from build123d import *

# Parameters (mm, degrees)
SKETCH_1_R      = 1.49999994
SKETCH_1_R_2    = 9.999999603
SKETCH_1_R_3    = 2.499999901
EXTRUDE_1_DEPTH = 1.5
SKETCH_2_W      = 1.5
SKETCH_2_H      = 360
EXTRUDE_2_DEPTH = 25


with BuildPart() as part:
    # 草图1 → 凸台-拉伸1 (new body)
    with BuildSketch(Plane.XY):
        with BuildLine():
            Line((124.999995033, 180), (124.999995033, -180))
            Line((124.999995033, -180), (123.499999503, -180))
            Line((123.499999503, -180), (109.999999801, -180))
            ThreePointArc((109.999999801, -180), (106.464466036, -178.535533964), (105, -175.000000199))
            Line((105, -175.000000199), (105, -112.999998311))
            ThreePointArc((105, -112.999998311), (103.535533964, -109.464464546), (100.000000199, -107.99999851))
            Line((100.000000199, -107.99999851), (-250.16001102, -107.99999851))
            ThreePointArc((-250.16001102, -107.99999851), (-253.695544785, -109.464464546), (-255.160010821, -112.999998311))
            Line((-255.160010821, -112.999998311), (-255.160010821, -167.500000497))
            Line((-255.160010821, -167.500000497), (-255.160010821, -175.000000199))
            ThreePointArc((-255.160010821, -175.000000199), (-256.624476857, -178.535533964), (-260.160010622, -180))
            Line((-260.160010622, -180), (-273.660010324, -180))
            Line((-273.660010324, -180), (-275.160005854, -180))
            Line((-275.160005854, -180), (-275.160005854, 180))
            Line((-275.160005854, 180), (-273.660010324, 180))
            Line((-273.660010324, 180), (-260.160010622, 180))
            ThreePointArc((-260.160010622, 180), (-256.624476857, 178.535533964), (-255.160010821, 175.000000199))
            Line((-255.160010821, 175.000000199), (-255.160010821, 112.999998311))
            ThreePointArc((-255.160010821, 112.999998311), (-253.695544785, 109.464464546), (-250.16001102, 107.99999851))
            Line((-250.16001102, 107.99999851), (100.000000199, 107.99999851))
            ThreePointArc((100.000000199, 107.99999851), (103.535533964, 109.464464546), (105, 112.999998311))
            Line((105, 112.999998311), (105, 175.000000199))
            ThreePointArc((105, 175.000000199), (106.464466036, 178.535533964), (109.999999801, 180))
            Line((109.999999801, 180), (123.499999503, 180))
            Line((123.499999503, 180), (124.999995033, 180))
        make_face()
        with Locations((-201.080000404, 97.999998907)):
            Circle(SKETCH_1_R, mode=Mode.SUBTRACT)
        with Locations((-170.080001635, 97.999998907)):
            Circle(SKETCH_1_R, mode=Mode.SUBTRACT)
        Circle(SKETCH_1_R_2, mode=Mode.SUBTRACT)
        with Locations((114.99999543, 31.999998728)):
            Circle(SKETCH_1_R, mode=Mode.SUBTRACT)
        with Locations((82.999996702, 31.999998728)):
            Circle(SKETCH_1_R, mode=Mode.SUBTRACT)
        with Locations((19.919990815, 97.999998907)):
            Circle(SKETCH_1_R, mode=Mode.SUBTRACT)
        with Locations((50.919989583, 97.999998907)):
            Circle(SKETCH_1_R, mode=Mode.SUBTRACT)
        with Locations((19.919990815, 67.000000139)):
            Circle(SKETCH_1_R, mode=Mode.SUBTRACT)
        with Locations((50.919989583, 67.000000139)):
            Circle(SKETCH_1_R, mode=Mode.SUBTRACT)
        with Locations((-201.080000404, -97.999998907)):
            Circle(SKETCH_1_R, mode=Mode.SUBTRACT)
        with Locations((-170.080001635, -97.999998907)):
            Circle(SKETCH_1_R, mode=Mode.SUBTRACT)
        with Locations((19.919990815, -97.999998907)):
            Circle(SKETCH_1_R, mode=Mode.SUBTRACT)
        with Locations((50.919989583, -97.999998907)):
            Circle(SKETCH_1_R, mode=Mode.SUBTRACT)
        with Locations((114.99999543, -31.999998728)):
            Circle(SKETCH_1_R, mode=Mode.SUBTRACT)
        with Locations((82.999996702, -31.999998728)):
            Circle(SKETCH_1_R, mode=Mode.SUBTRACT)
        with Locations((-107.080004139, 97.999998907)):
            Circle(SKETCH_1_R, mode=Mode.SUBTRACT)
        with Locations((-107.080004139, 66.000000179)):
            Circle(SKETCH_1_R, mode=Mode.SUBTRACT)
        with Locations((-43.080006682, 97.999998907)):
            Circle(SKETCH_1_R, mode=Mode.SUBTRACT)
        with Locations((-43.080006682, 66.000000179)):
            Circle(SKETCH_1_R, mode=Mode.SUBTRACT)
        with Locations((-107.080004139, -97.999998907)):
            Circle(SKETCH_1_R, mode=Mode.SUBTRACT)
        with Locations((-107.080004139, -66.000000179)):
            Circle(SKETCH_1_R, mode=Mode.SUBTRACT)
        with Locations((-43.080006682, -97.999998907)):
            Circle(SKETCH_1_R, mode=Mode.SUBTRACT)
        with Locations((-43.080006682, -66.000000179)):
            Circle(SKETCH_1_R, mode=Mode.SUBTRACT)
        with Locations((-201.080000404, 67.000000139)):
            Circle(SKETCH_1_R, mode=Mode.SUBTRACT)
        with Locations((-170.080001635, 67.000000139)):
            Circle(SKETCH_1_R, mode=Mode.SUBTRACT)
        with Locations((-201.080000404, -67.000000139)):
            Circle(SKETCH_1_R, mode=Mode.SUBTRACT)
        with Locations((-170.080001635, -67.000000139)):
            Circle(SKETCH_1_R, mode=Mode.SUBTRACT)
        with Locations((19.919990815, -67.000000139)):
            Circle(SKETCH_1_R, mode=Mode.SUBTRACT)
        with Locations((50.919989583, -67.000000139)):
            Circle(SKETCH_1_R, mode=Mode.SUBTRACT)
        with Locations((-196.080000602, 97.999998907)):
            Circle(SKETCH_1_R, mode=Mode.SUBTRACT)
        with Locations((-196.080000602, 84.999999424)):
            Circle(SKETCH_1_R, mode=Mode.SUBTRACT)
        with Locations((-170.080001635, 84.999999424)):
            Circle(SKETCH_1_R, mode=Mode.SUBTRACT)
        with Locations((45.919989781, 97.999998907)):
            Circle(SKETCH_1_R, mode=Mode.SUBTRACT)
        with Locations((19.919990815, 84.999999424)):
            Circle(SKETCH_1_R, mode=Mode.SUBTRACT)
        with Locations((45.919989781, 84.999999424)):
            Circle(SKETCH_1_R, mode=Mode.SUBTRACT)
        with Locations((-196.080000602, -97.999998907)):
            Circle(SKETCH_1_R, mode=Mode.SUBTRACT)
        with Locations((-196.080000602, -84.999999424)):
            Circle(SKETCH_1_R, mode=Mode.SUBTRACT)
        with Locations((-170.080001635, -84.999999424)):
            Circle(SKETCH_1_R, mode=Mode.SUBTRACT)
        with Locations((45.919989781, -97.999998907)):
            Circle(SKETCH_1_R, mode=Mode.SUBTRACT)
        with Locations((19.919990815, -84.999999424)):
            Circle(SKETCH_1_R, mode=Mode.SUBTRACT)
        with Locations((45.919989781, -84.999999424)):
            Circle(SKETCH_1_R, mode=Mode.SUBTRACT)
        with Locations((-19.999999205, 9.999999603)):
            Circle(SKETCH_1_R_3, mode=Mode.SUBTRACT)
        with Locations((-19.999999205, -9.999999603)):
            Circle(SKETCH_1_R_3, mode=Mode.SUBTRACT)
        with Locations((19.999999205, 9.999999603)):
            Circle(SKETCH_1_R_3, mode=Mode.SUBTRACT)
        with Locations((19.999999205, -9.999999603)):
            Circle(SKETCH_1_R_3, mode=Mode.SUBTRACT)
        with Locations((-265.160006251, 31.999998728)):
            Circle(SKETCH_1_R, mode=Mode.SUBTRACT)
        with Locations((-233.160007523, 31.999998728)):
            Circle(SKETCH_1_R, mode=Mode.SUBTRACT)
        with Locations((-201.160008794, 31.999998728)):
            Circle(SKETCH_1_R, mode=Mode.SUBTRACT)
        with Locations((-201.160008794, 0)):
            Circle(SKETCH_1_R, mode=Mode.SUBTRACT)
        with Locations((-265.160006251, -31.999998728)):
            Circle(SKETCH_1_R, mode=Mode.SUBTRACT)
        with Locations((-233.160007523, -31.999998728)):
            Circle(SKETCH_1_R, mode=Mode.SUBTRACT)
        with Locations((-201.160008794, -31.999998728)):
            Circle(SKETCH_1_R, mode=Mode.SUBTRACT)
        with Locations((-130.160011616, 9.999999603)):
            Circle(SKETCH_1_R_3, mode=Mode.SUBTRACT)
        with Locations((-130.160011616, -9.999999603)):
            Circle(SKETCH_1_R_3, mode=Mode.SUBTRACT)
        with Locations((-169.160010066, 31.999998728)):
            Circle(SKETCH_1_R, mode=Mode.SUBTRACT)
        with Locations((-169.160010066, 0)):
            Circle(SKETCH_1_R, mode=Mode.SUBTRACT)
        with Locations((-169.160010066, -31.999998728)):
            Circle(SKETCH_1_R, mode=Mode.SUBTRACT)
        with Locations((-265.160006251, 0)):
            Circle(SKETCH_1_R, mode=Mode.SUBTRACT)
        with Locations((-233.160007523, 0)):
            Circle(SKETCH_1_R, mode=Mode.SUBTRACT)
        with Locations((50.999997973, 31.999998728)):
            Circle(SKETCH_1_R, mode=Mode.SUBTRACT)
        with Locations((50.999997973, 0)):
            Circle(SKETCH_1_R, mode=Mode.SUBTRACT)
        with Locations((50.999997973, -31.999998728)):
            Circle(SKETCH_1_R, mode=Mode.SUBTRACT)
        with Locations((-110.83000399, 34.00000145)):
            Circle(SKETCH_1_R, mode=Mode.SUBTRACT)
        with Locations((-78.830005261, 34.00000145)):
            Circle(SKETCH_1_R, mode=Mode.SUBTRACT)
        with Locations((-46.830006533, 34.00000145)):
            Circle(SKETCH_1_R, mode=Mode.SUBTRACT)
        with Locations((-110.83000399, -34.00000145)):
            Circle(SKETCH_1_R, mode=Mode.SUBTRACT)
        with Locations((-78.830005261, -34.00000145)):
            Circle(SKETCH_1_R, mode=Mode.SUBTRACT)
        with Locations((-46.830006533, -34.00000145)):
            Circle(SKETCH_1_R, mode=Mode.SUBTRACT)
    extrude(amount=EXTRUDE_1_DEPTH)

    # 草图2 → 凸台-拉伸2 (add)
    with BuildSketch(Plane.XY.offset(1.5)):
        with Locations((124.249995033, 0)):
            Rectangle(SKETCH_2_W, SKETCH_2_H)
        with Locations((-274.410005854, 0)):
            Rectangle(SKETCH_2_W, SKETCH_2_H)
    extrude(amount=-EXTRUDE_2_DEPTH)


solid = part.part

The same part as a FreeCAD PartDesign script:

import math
import FreeCAD as App
import Part
import Sketcher

V = App.Vector


def add_polygon(sketch, points):
    """Adds a closed chain of lines whose ends are joined by coincident constraints."""
    first, n = sketch.GeometryCount, len(points)
    for a, b in zip(points, points[1:] + points[:1]):
        sketch.addGeometry(Part.LineSegment(App.Vector(*a, 0), App.Vector(*b, 0)), False)
    for i in range(n):
        sketch.addConstraint(Sketcher.Constraint("Coincident", first + i, 2, first + (i + 1) % n, 1))

doc = App.newDocument("Part")
params = doc.addObject("Spreadsheet::Sheet", "Params")
for row, (alias, value) in enumerate([
    ("sketch1_diameter", "3 mm"),
    ("sketch1_diameter2", "5 mm"),
    ("sketch1_diameter3", "19.999999 mm"),
    ("sketch1_radius", "5 mm"),
    ("sketch1_height", "360 mm"),
    ("pad1_length", "1.5 mm"),
    ("sketch2_height", "360 mm"),
    ("sketch2_width", "1.5 mm"),
    ("pad2_length", "25 mm"),
], start=1):
    params.set(f"A{row}", alias)
    params.set(f"B{row}", "=" + value)
    params.setAlias(f"B{row}", alias)

body = doc.addObject("PartDesign::Body", "Body")

# Sketch on XY plane
sketch1 = body.newObject("Sketcher::SketchObject", "Sketch")
sketch1.AttachmentSupport = (doc.getObject("XY_Plane"), [""])
sketch1.MapMode = "FlatFace"
sketch1.addGeometry([
    Part.LineSegment(V(125, -180, 0), V(125, 180, 0)),  # 0
    Part.LineSegment(V(125, 180, 0), V(110, 180, 0)),  # 1
    Part.ArcOfCircle(Part.Circle(V(110, 175, 0), V(0, 0, 1), 5), math.radians(90), math.radians(180)),  # 2
    Part.LineSegment(V(105, 175, 0), V(105, 113, 0)),  # 3
    Part.ArcOfCircle(Part.Circle(V(100, 113, 0), V(0, 0, 1), 5), math.radians(-90), math.radians(0)),  # 4
    Part.LineSegment(V(100, 108, 0), V(-250.2, 108, 0)),  # 5
    Part.ArcOfCircle(Part.Circle(V(-250.2, 113, 0), V(0, 0, 1), 5), math.radians(-180), math.radians(-90)),  # 6
    Part.LineSegment(V(-255.2, 113, 0), V(-255.2, 175, 0)),  # 7
    Part.ArcOfCircle(Part.Circle(V(-260.2, 175, 0), V(0, 0, 1), 5), math.radians(0), math.radians(90)),  # 8
    Part.LineSegment(V(-260.2, 180, 0), V(-275.2, 180, 0)),  # 9
    Part.LineSegment(V(-275.2, 180, 0), V(-275.2, -180, 0)),  # 10
    Part.LineSegment(V(-275.2, -180, 0), V(-260.2, -180, 0)),  # 11
    Part.ArcOfCircle(Part.Circle(V(-260.2, -175, 0), V(0, 0, 1), 5), math.radians(-90), math.radians(0)),  # 12
    Part.LineSegment(V(-255.2, -175, 0), V(-255.2, -113, 0)),  # 13
    Part.ArcOfCircle(Part.Circle(V(-250.2, -113, 0), V(0, 0, 1), 5), math.radians(90), math.radians(180)),  # 14
    Part.LineSegment(V(-250.2, -108, 0), V(100, -108, 0)),  # 15
    Part.ArcOfCircle(Part.Circle(V(100, -113, 0), V(0, 0, 1), 5), math.radians(0), math.radians(90)),  # 16
    Part.LineSegment(V(105, -113, 0), V(105, -175, 0)),  # 17
    Part.ArcOfCircle(Part.Circle(V(110, -175, 0), V(0, 0, 1), 5), math.radians(-180), math.radians(-90)),  # 18
    Part.LineSegment(V(110, -180, 0), V(125, -180, 0)),  # 19
    Part.Circle(V(50.9, -98, 0), V(0, 0, 1), 1.5),  # 20
    Part.Circle(V(45.9, -98, 0), V(0, 0, 1), 1.5),  # 21
    Part.Circle(V(45.9, -85, 0), V(0, 0, 1), 1.5),  # 22
    Part.Circle(V(50.9, -67, 0), V(0, 0, 1), 1.5),  # 23
    Part.Circle(V(19.9, -98, 0), V(0, 0, 1), 1.5),  # 24
    Part.Circle(V(19.9, -85, 0), V(0, 0, 1), 1.5),  # 25
    Part.Circle(V(-43.1, -98, 0), V(0, 0, 1), 1.5),  # 26
    Part.Circle(V(19.9, -67, 0), V(0, 0, 1), 1.5),  # 27
    Part.Circle(V(-43.1, -66, 0), V(0, 0, 1), 1.5),  # 28
    Part.Circle(V(115, -32, 0), V(0, 0, 1), 1.5),  # 29
    Part.Circle(V(83, -32, 0), V(0, 0, 1), 1.5),  # 30
    Part.Circle(V(51, -32, 0), V(0, 0, 1), 1.5),  # 31
    Part.Circle(V(-46.8, -34, 0), V(0, 0, 1), 1.5),  # 32
    Part.Circle(V(20, -10, 0), V(0, 0, 1), 2.5),  # 33
    Part.Circle(V(-20, -10, 0), V(0, 0, 1), 2.5),  # 34
    Part.Circle(V(-107.1, -98, 0), V(0, 0, 1), 1.5),  # 35
    Part.Circle(V(-170.1, -98, 0), V(0, 0, 1), 1.5),  # 36
    Part.Circle(V(-170.1, -85, 0), V(0, 0, 1), 1.5),  # 37
    Part.Circle(V(-107.1, -66, 0), V(0, 0, 1), 1.5),  # 38
    Part.Circle(V(-170.1, -67, 0), V(0, 0, 1), 1.5),  # 39
    Part.Circle(V(-196.1, -98, 0), V(0, 0, 1), 1.5),  # 40
    Part.Circle(V(-201.1, -98, 0), V(0, 0, 1), 1.5),  # 41
    Part.Circle(V(-196.1, -85, 0), V(0, 0, 1), 1.5),  # 42
    Part.Circle(V(-201.1, -67, 0), V(0, 0, 1), 1.5),  # 43
    Part.Circle(V(-78.8, -34, 0), V(0, 0, 1), 1.5),  # 44
    Part.Circle(V(-110.8, -34, 0), V(0, 0, 1), 1.5),  # 45
    Part.Circle(V(-169.2, -32, 0), V(0, 0, 1), 1.5),  # 46
    Part.Circle(V(-130.2, -10, 0), V(0, 0, 1), 2.5),  # 47
    Part.Circle(V(-201.2, -32, 0), V(0, 0, 1), 1.5),  # 48
    Part.Circle(V(-233.2, -32, 0), V(0, 0, 1), 1.5),  # 49
    Part.Circle(V(-265.2, -32, 0), V(0, 0, 1), 1.5),  # 50
    Part.Circle(V(51, 0, 0), V(0, 0, 1), 1.5),  # 51
    Part.Circle(V(115, 32, 0), V(0, 0, 1), 1.5),  # 52
    Part.Circle(V(83, 32, 0), V(0, 0, 1), 1.5),  # 53
    Part.Circle(V(51, 32, 0), V(0, 0, 1), 1.5),  # 54
    Part.Circle(V(0, 0, 0), V(0, 0, 1), 10),  # 55
    Part.Circle(V(20, 10, 0), V(0, 0, 1), 2.5),  # 56
    Part.Circle(V(-20, 10, 0), V(0, 0, 1), 2.5),  # 57
    Part.Circle(V(-46.8, 34, 0), V(0, 0, 1), 1.5),  # 58
    Part.Circle(V(50.9, 67, 0), V(0, 0, 1), 1.5),  # 59
    Part.Circle(V(45.9, 85, 0), V(0, 0, 1), 1.5),  # 60
    Part.Circle(V(50.9, 98, 0), V(0, 0, 1), 1.5),  # 61
    Part.Circle(V(45.9, 98, 0), V(0, 0, 1), 1.5),  # 62
    Part.Circle(V(19.9, 67, 0), V(0, 0, 1), 1.5),  # 63
    Part.Circle(V(-43.1, 66, 0), V(0, 0, 1), 1.5),  # 64
    Part.Circle(V(19.9, 85, 0), V(0, 0, 1), 1.5),  # 65
    Part.Circle(V(19.9, 98, 0), V(0, 0, 1), 1.5),  # 66
    Part.Circle(V(-43.1, 98, 0), V(0, 0, 1), 1.5),  # 67
    Part.Circle(V(-130.2, 10, 0), V(0, 0, 1), 2.5),  # 68
    Part.Circle(V(-169.2, 0, 0), V(0, 0, 1), 1.5),  # 69
    Part.Circle(V(-78.8, 34, 0), V(0, 0, 1), 1.5),  # 70
    Part.Circle(V(-110.8, 34, 0), V(0, 0, 1), 1.5),  # 71
    Part.Circle(V(-169.2, 32, 0), V(0, 0, 1), 1.5),  # 72
    Part.Circle(V(-201.2, 0, 0), V(0, 0, 1), 1.5),  # 73
    Part.Circle(V(-233.2, 0, 0), V(0, 0, 1), 1.5),  # 74
    Part.Circle(V(-265.2, 0, 0), V(0, 0, 1), 1.5),  # 75
    Part.Circle(V(-201.2, 32, 0), V(0, 0, 1), 1.5),  # 76
    Part.Circle(V(-233.2, 32, 0), V(0, 0, 1), 1.5),  # 77
    Part.Circle(V(-265.2, 32, 0), V(0, 0, 1), 1.5),  # 78
    Part.Circle(V(-107.1, 66, 0), V(0, 0, 1), 1.5),  # 79
    Part.Circle(V(-170.1, 67, 0), V(0, 0, 1), 1.5),  # 80
    Part.Circle(V(-107.1, 98, 0), V(0, 0, 1), 1.5),  # 81
    Part.Circle(V(-170.1, 85, 0), V(0, 0, 1), 1.5),  # 82
    Part.Circle(V(-170.1, 98, 0), V(0, 0, 1), 1.5),  # 83
    Part.Circle(V(-201.1, 67, 0), V(0, 0, 1), 1.5),  # 84
    Part.Circle(V(-196.1, 85, 0), V(0, 0, 1), 1.5),  # 85
    Part.Circle(V(-196.1, 98, 0), V(0, 0, 1), 1.5),  # 86
    Part.Circle(V(-201.1, 98, 0), V(0, 0, 1), 1.5),  # 87
], False)
sketch1.addConstraint([
    Sketcher.Constraint("Coincident", 0, 2, 1, 1),
    Sketcher.Constraint("Tangent", 1, 2, 2, 1),
    Sketcher.Constraint("Tangent", 2, 2, 3, 1),
    Sketcher.Constraint("Tangent", 3, 2, 4, 2),
    Sketcher.Constraint("Tangent", 4, 1, 5, 1),
    Sketcher.Constraint("Tangent", 5, 2, 6, 2),
    Sketcher.Constraint("Tangent", 6, 1, 7, 1),
    Sketcher.Constraint("Tangent", 7, 2, 8, 1),
    Sketcher.Constraint("Tangent", 8, 2, 9, 1),
    Sketcher.Constraint("Coincident", 9, 2, 10, 1),
    Sketcher.Constraint("Coincident", 10, 2, 11, 1),
    Sketcher.Constraint("Tangent", 11, 2, 12, 1),
    Sketcher.Constraint("Tangent", 12, 2, 13, 1),
    Sketcher.Constraint("Tangent", 13, 2, 14, 2),
    Sketcher.Constraint("Tangent", 14, 1, 15, 1),
    Sketcher.Constraint("Tangent", 15, 2, 16, 2),
    Sketcher.Constraint("Tangent", 16, 1, 17, 1),
    Sketcher.Constraint("Tangent", 17, 2, 18, 1),
    Sketcher.Constraint("Tangent", 18, 2, 19, 1),
    Sketcher.Constraint("Coincident", 19, 2, 0, 1),
    Sketcher.Constraint("Vertical", 0),
    Sketcher.Constraint("Horizontal", 1),
    Sketcher.Constraint("Vertical", 3),
    Sketcher.Constraint("Horizontal", 5),
    Sketcher.Constraint("Vertical", 7),
    Sketcher.Constraint("Horizontal", 9),
    Sketcher.Constraint("Vertical", 10),
    Sketcher.Constraint("Horizontal", 11),
    Sketcher.Constraint("Vertical", 13),
    Sketcher.Constraint("Horizontal", 15),
    Sketcher.Constraint("Vertical", 17),
    Sketcher.Constraint("Horizontal", 19),
    Sketcher.Constraint("Coincident", 55, 3, -1, 1),
    Sketcher.Constraint("Equal", 2, 4),
    Sketcher.Constraint("Equal", 4, 6),
    Sketcher.Constraint("Equal", 6, 8),
    Sketcher.Constraint("Equal", 8, 12),
    Sketcher.Constraint("Equal", 12, 14),
    Sketcher.Constraint("Equal", 14, 16),
    Sketcher.Constraint("Equal", 16, 18),
    Sketcher.Constraint("Equal", 20, 21),
    Sketcher.Constraint("Equal", 21, 22),
    Sketcher.Constraint("Equal", 22, 23),
    Sketcher.Constraint("Equal", 23, 24),
    Sketcher.Constraint("Equal", 24, 25),
    Sketcher.Constraint("Equal", 25, 26),
    Sketcher.Constraint("Equal", 26, 27),
    Sketcher.Constraint("Equal", 27, 28),
    Sketcher.Constraint("Equal", 28, 29),
    Sketcher.Constraint("Equal", 29, 30),
    Sketcher.Constraint("Equal", 30, 31),
    Sketcher.Constraint("Equal", 31, 32),
    Sketcher.Constraint("Equal", 33, 34),
    Sketcher.Constraint("Equal", 32, 35),
    Sketcher.Constraint("Equal", 35, 36),
    Sketcher.Constraint("Equal", 36, 37),
    Sketcher.Constraint("Equal", 37, 38),
    Sketcher.Constraint("Equal", 38, 39),
    Sketcher.Constraint("Equal", 39, 40),
    Sketcher.Constraint("Equal", 40, 41),
    Sketcher.Constraint("Equal", 41, 42),
    Sketcher.Constraint("Equal", 42, 43),
    Sketcher.Constraint("Equal", 43, 44),
    Sketcher.Constraint("Equal", 44, 45),
    Sketcher.Constraint("Equal", 45, 46),
    Sketcher.Constraint("Equal", 34, 47),
    Sketcher.Constraint("Equal", 46, 48),
    Sketcher.Constraint("Equal", 48, 49),
    Sketcher.Constraint("Equal", 49, 50),
    Sketcher.Constraint("Equal", 50, 51),
    Sketcher.Constraint("Equal", 51, 52),
    Sketcher.Constraint("Equal", 52, 53),
    Sketcher.Constraint("Equal", 53, 54),
    Sketcher.Constraint("Equal", 47, 56),
    Sketcher.Constraint("Equal", 56, 57),
    Sketcher.Constraint("Equal", 54, 58),
    Sketcher.Constraint("Equal", 58, 59),
    Sketcher.Constraint("Equal", 59, 60),
    Sketcher.Constraint("Equal", 60, 61),
    Sketcher.Constraint("Equal", 61, 62),
    Sketcher.Constraint("Equal", 62, 63),
    Sketcher.Constraint("Equal", 63, 64),
    Sketcher.Constraint("Equal", 64, 65),
    Sketcher.Constraint("Equal", 65, 66),
    Sketcher.Constraint("Equal", 66, 67),
    Sketcher.Constraint("Equal", 57, 68),
    Sketcher.Constraint("Equal", 67, 69),
    Sketcher.Constraint("Equal", 69, 70),
    Sketcher.Constraint("Equal", 70, 71),
    Sketcher.Constraint("Equal", 71, 72),
    Sketcher.Constraint("Equal", 72, 73),
    Sketcher.Constraint("Equal", 73, 74),
    Sketcher.Constraint("Equal", 74, 75),
    Sketcher.Constraint("Equal", 75, 76),
    Sketcher.Constraint("Equal", 76, 77),
    Sketcher.Constraint("Equal", 77, 78),
    Sketcher.Constraint("Equal", 78, 79),
    Sketcher.Constraint("Equal", 79, 80),
    Sketcher.Constraint("Equal", 80, 81),
    Sketcher.Constraint("Equal", 81, 82),
    Sketcher.Constraint("Equal", 82, 83),
    Sketcher.Constraint("Equal", 83, 84),
    Sketcher.Constraint("Equal", 84, 85),
    Sketcher.Constraint("Equal", 85, 86),
    Sketcher.Constraint("Equal", 86, 87),
    Sketcher.Constraint("Symmetric", 34, 3, 56, 3, -1, 1),
    Sketcher.Constraint("Symmetric", 33, 3, 57, 3, -1, 1),
    Sketcher.Constraint("Symmetric", 33, 3, 34, 3, -2),
    Sketcher.Constraint("Symmetric", 8, 3, 12, 3, -1),
    Sketcher.Constraint("Symmetric", 4, 3, 16, 3, -1),
    Sketcher.Constraint("Symmetric", 29, 3, 52, 3, -1),
    Sketcher.Constraint("Symmetric", 30, 3, 53, 3, -1),
    Sketcher.Constraint("Symmetric", 31, 3, 54, 3, -1),
    Sketcher.Constraint("Symmetric", 32, 3, 58, 3, -1),
    Sketcher.Constraint("Symmetric", 23, 3, 59, 3, -1),
    Sketcher.Constraint("Symmetric", 22, 3, 60, 3, -1),
    Sketcher.Constraint("Symmetric", 20, 3, 61, 3, -1),
    Sketcher.Constraint("Symmetric", 21, 3, 62, 3, -1),
    Sketcher.Constraint("Symmetric", 27, 3, 63, 3, -1),
    Sketcher.Constraint("Symmetric", 28, 3, 64, 3, -1),
    Sketcher.Constraint("Symmetric", 25, 3, 65, 3, -1),
    Sketcher.Constraint("Symmetric", 24, 3, 66, 3, -1),
    Sketcher.Constraint("Symmetric", 26, 3, 67, 3, -1),
    Sketcher.Constraint("Symmetric", 47, 3, 68, 3, -1),
    Sketcher.Constraint("Symmetric", 44, 3, 70, 3, -1),
    Sketcher.Constraint("Symmetric", 45, 3, 71, 3, -1),
    Sketcher.Constraint("Symmetric", 46, 3, 72, 3, -1),
    Sketcher.Constraint("Symmetric", 48, 3, 76, 3, -1),
    Sketcher.Constraint("Symmetric", 49, 3, 77, 3, -1),
    Sketcher.Constraint("Symmetric", 50, 3, 78, 3, -1),
    Sketcher.Constraint("Symmetric", 38, 3, 79, 3, -1),
    Sketcher.Constraint("Symmetric", 39, 3, 80, 3, -1),
    Sketcher.Constraint("Symmetric", 35, 3, 81, 3, -1),
    Sketcher.Constraint("Symmetric", 37, 3, 82, 3, -1),
    Sketcher.Constraint("Symmetric", 36, 3, 83, 3, -1),
    Sketcher.Constraint("Symmetric", 43, 3, 84, 3, -1),
    Sketcher.Constraint("Symmetric", 42, 3, 85, 3, -1),
    Sketcher.Constraint("Symmetric", 40, 3, 86, 3, -1),
    Sketcher.Constraint("Symmetric", 41, 3, 87, 3, -1),
    Sketcher.Constraint("PointOnObject", 51, 3, -1),
    Sketcher.Constraint("PointOnObject", 69, 3, -1),
    Sketcher.Constraint("PointOnObject", 73, 3, -1),
    Sketcher.Constraint("PointOnObject", 74, 3, -1),
    Sketcher.Constraint("PointOnObject", 75, 3, -1),
    Sketcher.Constraint("Horizontal", 2, 3, 8, 3),
    Sketcher.Constraint("Horizontal", 12, 3, 18, 3),
    Sketcher.Constraint("Horizontal", 20, 3, 21, 3),
    Sketcher.Constraint("Horizontal", 21, 3, 24, 3),
    Sketcher.Constraint("Horizontal", 22, 3, 25, 3),
    Sketcher.Constraint("Horizontal", 24, 3, 26, 3),
    Sketcher.Constraint("Horizontal", 23, 3, 27, 3),
    Sketcher.Constraint("Horizontal", 29, 3, 30, 3),
    Sketcher.Constraint("Horizontal", 30, 3, 31, 3),
    Sketcher.Constraint("Horizontal", 26, 3, 35, 3),
    Sketcher.Constraint("Horizontal", 35, 3, 36, 3),
    Sketcher.Constraint("Horizontal", 25, 3, 37, 3),
    Sketcher.Constraint("Horizontal", 28, 3, 38, 3),
    Sketcher.Constraint("Horizontal", 27, 3, 39, 3),
    Sketcher.Constraint("Horizontal", 36, 3, 40, 3),
    Sketcher.Constraint("Horizontal", 40, 3, 41, 3),
    Sketcher.Constraint("Horizontal", 37, 3, 42, 3),
    Sketcher.Constraint("Horizontal", 39, 3, 43, 3),
    Sketcher.Constraint("Horizontal", 32, 3, 44, 3),
    Sketcher.Constraint("Horizontal", 44, 3, 45, 3),
    Sketcher.Constraint("Horizontal", 31, 3, 46, 3),
    Sketcher.Constraint("Horizontal", 34, 3, 47, 3),
    Sketcher.Constraint("Horizontal", 46, 3, 48, 3),
    Sketcher.Constraint("Horizontal", 48, 3, 49, 3),
    Sketcher.Constraint("Horizontal", 49, 3, 50, 3),
    Sketcher.Constraint("Vertical", 21, 3, 22, 3),
    Sketcher.Constraint("Vertical", 20, 3, 23, 3),
    Sketcher.Constraint("Vertical", 24, 3, 25, 3),
    Sketcher.Constraint("Vertical", 25, 3, 27, 3),
    Sketcher.Constraint("Vertical", 26, 3, 28, 3),
    Sketcher.Constraint("Vertical", 36, 3, 37, 3),
    Sketcher.Constraint("Vertical", 35, 3, 38, 3),
    Sketcher.Constraint("Vertical", 37, 3, 39, 3),
    Sketcher.Constraint("Vertical", 40, 3, 42, 3),
    Sketcher.Constraint("Vertical", 41, 3, 43, 3),
    Sketcher.Constraint("Vertical", 31, 3, 51, 3),
    Sketcher.Constraint("Vertical", 46, 3, 69, 3),
    Sketcher.Constraint("Vertical", 48, 3, 73, 3),
    Sketcher.Constraint("Vertical", 49, 3, 74, 3),
    Sketcher.Constraint("Vertical", 50, 3, 75, 3),
    Sketcher.Constraint("Equal", 1, 9),
    Sketcher.Constraint("Diameter", 20, 3.0),
    Sketcher.Constraint("Diameter", 33, 5.0),
    Sketcher.Constraint("Diameter", 55, 19.999999),
    Sketcher.Constraint("Radius", 2, 5.0),
    Sketcher.Constraint("DistanceY", 0, 1, 0, 2, 360.0),
    Sketcher.Constraint("DistanceY", 3, 2, 3, 1, 62.000002),
    Sketcher.Constraint("DistanceX", -1, 1, 2, 3, 110.0),
    Sketcher.Constraint("DistanceY", 20, 3, -1, 1, 97.999999),
    Sketcher.Constraint("DistanceY", 22, 3, -1, 1, 84.999999),
    Sketcher.Constraint("DistanceY", 23, 3, -1, 1, 67.0),
    Sketcher.Constraint("DistanceY", 28, 3, -1, 1, 66.0),
    Sketcher.Constraint("DistanceY", 29, 3, -1, 1, 31.999999),
    Sketcher.Constraint("DistanceY", 32, 3, -1, 1, 34.000001),
    Sketcher.Constraint("DistanceX", -1, 1, 33, 3, 19.999999),
    Sketcher.Constraint("DistanceY", 33, 3, -1, 1, 10.0),
    Sketcher.Constraint("DistanceX", 36, 3, -1, 1, 170.080002),
    Sketcher.Constraint("DistanceX", 40, 3, -1, 1, 196.080001),
    Sketcher.Constraint("DistanceX", 41, 3, -1, 1, 201.08),
    Sketcher.Constraint("DistanceX", 5, 2, 5, 1, 350.160011),
    Sketcher.Constraint("DistanceX", 1, 2, 1, 1, 14.999995),
    Sketcher.Constraint("DistanceX", -1, 1, 20, 3, 50.91999),
    Sketcher.Constraint("DistanceX", -1, 1, 21, 3, 45.91999),
    Sketcher.Constraint("DistanceX", -1, 1, 24, 3, 19.919991),
    Sketcher.Constraint("DistanceX", 46, 3, -1, 1, 169.16001),
    Sketcher.Constraint("DistanceX", 47, 3, -1, 1, 130.160012),
    Sketcher.Constraint("DistanceX", 48, 3, -1, 1, 201.160009),
    Sketcher.Constraint("DistanceX", 26, 3, -1, 1, 43.080007),
    Sketcher.Constraint("DistanceX", -1, 1, 29, 3, 114.999995),
    Sketcher.Constraint("DistanceX", -1, 1, 30, 3, 82.999997),
    Sketcher.Constraint("DistanceX", -1, 1, 31, 3, 50.999998),
    Sketcher.Constraint("DistanceX", 32, 3, -1, 1, 46.830007),
    Sketcher.Constraint("DistanceX", 35, 3, -1, 1, 107.080004),
    Sketcher.Constraint("DistanceX", 44, 3, -1, 1, 78.830005),
    Sketcher.Constraint("DistanceX", 45, 3, -1, 1, 110.830004),
    Sketcher.Constraint("DistanceX", 49, 3, -1, 1, 233.160008),
    Sketcher.Constraint("DistanceX", 50, 3, -1, 1, 265.160006),
])
sketch1.setExpression("Constraints[185]", "Params.sketch1_diameter")
sketch1.setExpression("Constraints[186]", "Params.sketch1_diameter2")
sketch1.setExpression("Constraints[187]", "Params.sketch1_diameter3")
sketch1.setExpression("Constraints[188]", "Params.sketch1_radius")
sketch1.setExpression("Constraints[189]", "Params.sketch1_height")
pad1 = body.newObject("PartDesign::Pad", "Pad")
pad1.Profile = sketch1
pad1.setExpression("Length", "Params.pad1_length")

# Sketch on XY plane
sketch2 = body.newObject("Sketcher::SketchObject", "Sketch001")
sketch2.AttachmentSupport = (doc.getObject("XY_Plane"), [""])
sketch2.MapMode = "FlatFace"
sketch2.AttachmentOffset = App.Placement(V(0, 0, 1.5), App.Rotation())
add_polygon(sketch2, [(123.5, 180), (123.5, -180), (125, -180), (125, 180)])  # lines 0-3
add_polygon(sketch2, [(-275.2, 180), (-275.2, -180), (-273.7, -180), (-273.7, 180)])  # lines 4-7
sketch2.addConstraint([
    Sketcher.Constraint("Vertical", 0),
    Sketcher.Constraint("Horizontal", 1),
    Sketcher.Constraint("Vertical", 2),
    Sketcher.Constraint("Horizontal", 3),
    Sketcher.Constraint("Vertical", 4),
    Sketcher.Constraint("Horizontal", 5),
    Sketcher.Constraint("Vertical", 6),
    Sketcher.Constraint("Horizontal", 7),
    Sketcher.Constraint("Horizontal", 1, 2, 4, 2),
    Sketcher.Constraint("Horizontal", 3, 2, 6, 2),
    Sketcher.Constraint("Equal", 3, 5),
    Sketcher.Constraint("DistanceY", 0, 2, 0, 1, 360.0),
    Sketcher.Constraint("DistanceX", 1, 1, 1, 2, 1.5),
    Sketcher.Constraint("DistanceY", 0, 2, -1, 1, 180.0),
    Sketcher.Constraint("DistanceX", 4, 2, 0, 2, 398.660001),
    Sketcher.Constraint("DistanceX", -1, 1, 0, 2, 123.499995),
])
sketch2.setExpression("Constraints[19]", "Params.sketch2_height")
sketch2.setExpression("Constraints[20]", "Params.sketch2_width")
pad2 = body.newObject("PartDesign::Pad", "Pad001")
pad2.Profile = sketch2
pad2.setExpression("Length", "Params.pad2_length")
pad2.Reversed = True

doc.recompute()
